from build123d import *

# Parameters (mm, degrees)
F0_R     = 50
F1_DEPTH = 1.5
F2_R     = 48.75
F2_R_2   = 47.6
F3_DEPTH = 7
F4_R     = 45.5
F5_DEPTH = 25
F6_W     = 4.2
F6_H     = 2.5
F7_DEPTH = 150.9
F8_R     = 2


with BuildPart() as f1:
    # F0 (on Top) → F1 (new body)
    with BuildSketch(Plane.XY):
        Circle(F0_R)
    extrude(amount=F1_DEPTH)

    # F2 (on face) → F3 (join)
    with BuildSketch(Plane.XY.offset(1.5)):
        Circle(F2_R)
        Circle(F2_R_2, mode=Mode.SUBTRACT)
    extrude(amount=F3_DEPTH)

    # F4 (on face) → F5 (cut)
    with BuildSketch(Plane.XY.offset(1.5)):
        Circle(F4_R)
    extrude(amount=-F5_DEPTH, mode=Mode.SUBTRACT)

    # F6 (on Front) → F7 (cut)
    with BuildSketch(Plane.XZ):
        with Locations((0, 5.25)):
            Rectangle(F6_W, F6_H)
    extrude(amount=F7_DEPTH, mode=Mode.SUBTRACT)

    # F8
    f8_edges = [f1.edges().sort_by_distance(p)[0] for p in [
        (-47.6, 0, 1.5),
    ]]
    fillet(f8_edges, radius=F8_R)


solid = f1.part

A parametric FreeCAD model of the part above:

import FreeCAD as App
import Part
import Sketcher
from FreeCAD import Vector
Q = App.Units.Quantity


def edges_at(feature, points):
    """Names of the edges that pass closest to the given points."""
    edges = feature.Shape.Edges
    near = lambda p: min(range(len(edges)), key=lambda i: edges[i].distToShape(Part.Vertex(*p))[0])
    return sorted({f"Edge{near(p) + 1}" for p in points})

doc = App.newDocument("Part")
body = doc.addObject("PartDesign::Body", "Body")

# Sketch on XY plane
sketch1 = doc.addObject("Sketcher::SketchObject", "Sketch")
body.addObject(sketch1)
sketch1.AttachmentSupport = (doc.XY_Plane, [""])
sketch1.MapMode = "FlatFace"
sketch1.addGeometry(Part.Circle(Vector(0, 0, 0), Vector(0, 0, 1), 50), False)
sketch1.addConstraint([
    Sketcher.Constraint("Coincident", 0, 3, -1, 1),
    Sketcher.Constraint("Diameter", 0, Q("100 mm")),
])
pad1 = doc.addObject("PartDesign::Pad", "Pad")
body.addObject(pad1)
pad1.Profile = sketch1
pad1.Length = 1.5

# Sketch on XY plane
sketch2 = doc.addObject("Sketcher::SketchObject", "Sketch001")
body.addObject(sketch2)
sketch2.AttachmentSupport = (doc.XY_Plane, [""])
sketch2.MapMode = "FlatFace"
sketch2.AttachmentOffset = App.Placement(Vector(0, 0, 1.5), App.Rotation())
sketch2.addGeometry([
    Part.Circle(Vector(0, 0, 0), Vector(0, 0, 1), 49),
    Part.Circle(Vector(0, 0, 0), Vector(0, 0, 1), 48),
], False)
sketch2.addConstraint([
    Sketcher.Constraint("Coincident", 0, 3, -1, 1),
    Sketcher.Constraint("Coincident", 1, 3, -1, 1),
    Sketcher.Constraint("Diameter", 0, Q("97.5 mm")),
    Sketcher.Constraint("Diameter", 1, Q("95.2 mm")),
])
pad2 = doc.addObject("PartDesign::Pad", "Pad001")
body.addObject(pad2)
pad2.Profile = sketch2
pad2.Length = 7

# Sketch on XY plane
sketch3 = doc.addObject("Sketcher::SketchObject", "Sketch002")
body.addObject(sketch3)
sketch3.AttachmentSupport = (doc.XY_Plane, [""])
sketch3.MapMode = "FlatFace"
sketch3.AttachmentOffset = App.Placement(Vector(0, 0, 1.5), App.Rotation())
sketch3.addGeometry(Part.Circle(Vector(0, 0, 0), Vector(0, 0, 1), 46), False)
sketch3.addConstraint([
    Sketcher.Constraint("Coincident", 0, 3, -1, 1),
    Sketcher.Constraint("Diameter", 0, Q("91 mm")),
])
pocket1 = doc.addObject("PartDesign::Pocket", "Pocket")
body.addObject(pocket1)
pocket1.Profile = sketch3
pocket1.Length = 25

# Sketch on XZ plane
sketch4 = doc.addObject("Sketcher::SketchObject", "Sketch003")
body.addObject(sketch4)
sketch4.AttachmentSupport = (doc.XZ_Plane, [""])
sketch4.MapMode = "FlatFace"
sketch4.addGeometry([
    Part.LineSegment(Vector(-2.1, 6.5, 0), Vector(-2.1, 4, 0)),
    Part.LineSegment(Vector(-2.1, 4, 0), Vector(2.1, 4, 0)),
    Part.LineSegment(Vector(2.1, 4, 0), Vector(2.1, 6.5, 0)),
    Part.LineSegment(Vector(2.1, 6.5, 0), Vector(-2.1, 6.5, 0)),
], False)
sketch4.addConstraint([
    Sketcher.Constraint("Coincident", 0, 2, 1, 1),
    Sketcher.Constraint("Coincident", 1, 2, 2, 1),
    Sketcher.Constraint("Coincident", 2, 2, 3, 1),
    Sketcher.Constraint("Coincident", 3, 2, 0, 1),
    Sketcher.Constraint("Vertical", 0),
    Sketcher.Constraint("Horizontal", 1),
    Sketcher.Constraint("Vertical", 2),
    Sketcher.Constraint("Horizontal", 3),
    Sketcher.Constraint("DistanceX", 1, 1, 1, 2, Q("4.2 mm")),
    Sketcher.Constraint("DistanceY", 0, 2, 0, 1, Q("2.5 mm")),
    Sketcher.Constraint("DistanceY", -1, 1, 0, 2, Q("4 mm")),
    Sketcher.Constraint("DistanceX", 0, 2, -1, 1, Q("2.1 mm")),
])
pocket2 = doc.addObject("PartDesign::Pocket", "Pocket001")
body.addObject(pocket2)
pocket2.Profile = sketch4
pocket2.Length = 150.9
pocket2.Reversed = True
doc.recompute()

fillet = doc.addObject("PartDesign::Fillet", "Fillet")
body.addObject(fillet)
fillet.Base = (pocket2, edges_at(pocket2, [(-47.6, 0, 1.5)]))
fillet.Radius = 2

doc.recompute()
